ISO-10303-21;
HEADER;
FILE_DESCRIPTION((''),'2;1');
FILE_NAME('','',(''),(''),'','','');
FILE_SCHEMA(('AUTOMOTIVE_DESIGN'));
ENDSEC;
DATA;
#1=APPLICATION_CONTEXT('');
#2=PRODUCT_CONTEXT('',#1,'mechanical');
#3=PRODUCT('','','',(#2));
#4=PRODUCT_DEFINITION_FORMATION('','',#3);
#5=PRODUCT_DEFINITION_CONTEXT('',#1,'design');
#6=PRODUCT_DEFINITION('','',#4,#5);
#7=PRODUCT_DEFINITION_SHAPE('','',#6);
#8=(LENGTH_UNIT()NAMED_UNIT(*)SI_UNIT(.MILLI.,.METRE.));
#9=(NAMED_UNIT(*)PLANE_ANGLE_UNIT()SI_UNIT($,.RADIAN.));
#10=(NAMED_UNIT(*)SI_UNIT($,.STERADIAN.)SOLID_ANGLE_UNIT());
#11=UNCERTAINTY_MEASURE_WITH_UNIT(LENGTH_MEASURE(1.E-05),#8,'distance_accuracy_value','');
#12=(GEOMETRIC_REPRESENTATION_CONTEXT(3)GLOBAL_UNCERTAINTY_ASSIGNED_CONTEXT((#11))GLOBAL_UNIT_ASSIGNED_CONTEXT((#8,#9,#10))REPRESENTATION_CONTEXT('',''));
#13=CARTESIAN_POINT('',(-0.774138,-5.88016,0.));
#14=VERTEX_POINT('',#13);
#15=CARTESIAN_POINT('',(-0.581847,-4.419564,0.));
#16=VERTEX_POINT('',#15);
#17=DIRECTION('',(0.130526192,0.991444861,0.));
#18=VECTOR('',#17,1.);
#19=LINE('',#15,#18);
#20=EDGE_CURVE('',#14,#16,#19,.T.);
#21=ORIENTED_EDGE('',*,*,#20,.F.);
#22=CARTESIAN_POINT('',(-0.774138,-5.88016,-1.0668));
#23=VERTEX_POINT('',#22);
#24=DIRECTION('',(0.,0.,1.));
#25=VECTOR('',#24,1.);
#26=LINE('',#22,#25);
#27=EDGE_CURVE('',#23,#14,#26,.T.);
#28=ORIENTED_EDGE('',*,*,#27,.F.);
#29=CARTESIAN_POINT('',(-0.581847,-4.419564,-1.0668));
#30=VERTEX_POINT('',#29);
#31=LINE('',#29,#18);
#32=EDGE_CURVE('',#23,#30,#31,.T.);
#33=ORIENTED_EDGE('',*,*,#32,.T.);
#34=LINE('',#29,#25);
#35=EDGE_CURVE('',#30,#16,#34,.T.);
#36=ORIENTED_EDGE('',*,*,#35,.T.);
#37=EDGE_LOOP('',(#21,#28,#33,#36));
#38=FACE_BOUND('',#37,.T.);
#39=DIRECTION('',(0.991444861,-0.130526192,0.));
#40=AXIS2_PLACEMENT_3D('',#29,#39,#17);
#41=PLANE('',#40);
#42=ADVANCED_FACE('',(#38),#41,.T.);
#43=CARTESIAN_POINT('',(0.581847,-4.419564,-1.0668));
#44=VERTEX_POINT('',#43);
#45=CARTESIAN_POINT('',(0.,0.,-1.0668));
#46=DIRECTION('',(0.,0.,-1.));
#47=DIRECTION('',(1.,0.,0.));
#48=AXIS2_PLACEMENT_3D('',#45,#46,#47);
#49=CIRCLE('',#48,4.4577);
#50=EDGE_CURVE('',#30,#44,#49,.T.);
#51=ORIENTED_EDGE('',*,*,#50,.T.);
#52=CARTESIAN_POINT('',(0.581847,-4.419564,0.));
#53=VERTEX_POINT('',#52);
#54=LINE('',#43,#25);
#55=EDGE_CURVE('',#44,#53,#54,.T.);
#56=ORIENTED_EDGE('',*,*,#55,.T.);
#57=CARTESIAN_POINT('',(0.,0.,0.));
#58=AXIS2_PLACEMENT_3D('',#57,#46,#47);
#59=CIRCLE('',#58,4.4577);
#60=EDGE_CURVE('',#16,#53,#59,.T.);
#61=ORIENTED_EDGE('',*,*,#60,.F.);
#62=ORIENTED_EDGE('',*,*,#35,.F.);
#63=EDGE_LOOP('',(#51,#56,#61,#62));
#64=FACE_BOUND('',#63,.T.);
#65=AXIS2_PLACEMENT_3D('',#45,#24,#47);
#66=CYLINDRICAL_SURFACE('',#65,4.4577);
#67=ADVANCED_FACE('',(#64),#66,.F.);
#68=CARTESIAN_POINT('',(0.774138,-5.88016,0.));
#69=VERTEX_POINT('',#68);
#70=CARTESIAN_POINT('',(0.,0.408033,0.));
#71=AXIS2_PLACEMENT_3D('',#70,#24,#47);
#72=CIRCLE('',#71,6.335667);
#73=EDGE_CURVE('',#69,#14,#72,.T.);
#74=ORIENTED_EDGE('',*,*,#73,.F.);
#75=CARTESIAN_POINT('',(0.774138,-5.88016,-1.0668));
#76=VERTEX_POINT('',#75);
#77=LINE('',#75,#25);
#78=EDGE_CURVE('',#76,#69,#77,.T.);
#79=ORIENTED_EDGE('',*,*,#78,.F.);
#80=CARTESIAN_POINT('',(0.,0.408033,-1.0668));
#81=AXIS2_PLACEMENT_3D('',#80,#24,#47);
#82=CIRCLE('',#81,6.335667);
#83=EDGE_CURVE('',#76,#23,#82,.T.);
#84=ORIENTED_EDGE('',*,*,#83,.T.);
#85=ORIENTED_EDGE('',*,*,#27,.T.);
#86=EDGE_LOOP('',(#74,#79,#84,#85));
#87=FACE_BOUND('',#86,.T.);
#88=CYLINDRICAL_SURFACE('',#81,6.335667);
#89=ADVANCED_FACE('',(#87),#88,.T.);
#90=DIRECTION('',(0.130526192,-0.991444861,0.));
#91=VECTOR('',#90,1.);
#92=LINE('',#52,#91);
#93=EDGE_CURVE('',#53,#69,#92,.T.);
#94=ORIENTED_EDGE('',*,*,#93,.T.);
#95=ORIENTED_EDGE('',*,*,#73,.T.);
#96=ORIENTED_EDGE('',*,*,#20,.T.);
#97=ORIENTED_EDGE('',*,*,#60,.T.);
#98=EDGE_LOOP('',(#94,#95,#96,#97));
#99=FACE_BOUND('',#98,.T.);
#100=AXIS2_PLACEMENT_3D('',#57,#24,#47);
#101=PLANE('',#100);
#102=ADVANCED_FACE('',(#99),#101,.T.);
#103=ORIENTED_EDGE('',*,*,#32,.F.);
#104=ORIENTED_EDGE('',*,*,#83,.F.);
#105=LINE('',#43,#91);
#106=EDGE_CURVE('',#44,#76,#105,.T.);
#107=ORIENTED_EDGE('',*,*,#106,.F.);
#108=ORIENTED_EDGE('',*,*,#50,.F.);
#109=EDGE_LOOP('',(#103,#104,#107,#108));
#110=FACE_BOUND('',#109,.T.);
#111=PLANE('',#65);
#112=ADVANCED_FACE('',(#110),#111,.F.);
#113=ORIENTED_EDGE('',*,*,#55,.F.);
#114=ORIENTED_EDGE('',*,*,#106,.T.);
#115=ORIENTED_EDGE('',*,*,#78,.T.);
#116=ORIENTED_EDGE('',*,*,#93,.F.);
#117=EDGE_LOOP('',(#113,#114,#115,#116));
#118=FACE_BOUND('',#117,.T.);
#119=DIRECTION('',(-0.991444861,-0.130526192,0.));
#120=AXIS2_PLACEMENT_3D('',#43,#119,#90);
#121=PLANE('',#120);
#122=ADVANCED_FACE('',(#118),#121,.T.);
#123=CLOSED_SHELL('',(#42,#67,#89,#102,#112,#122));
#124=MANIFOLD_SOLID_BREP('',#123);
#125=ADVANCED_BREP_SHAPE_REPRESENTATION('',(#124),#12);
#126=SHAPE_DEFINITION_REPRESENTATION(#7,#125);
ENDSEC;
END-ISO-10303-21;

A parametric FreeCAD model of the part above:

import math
import FreeCAD as App
import Part
import Sketcher

V = App.Vector
Q = App.Units.Quantity

doc = App.newDocument("Part")
body = doc.addObject("PartDesign::Body", "Body")

sketch1 = body.newObject("Sketcher::SketchObject", "Sketch")
sketch1.AttachmentSupport = (doc.getObject("XY_Plane"), [""])
sketch1.MapMode = "FlatFace"
sketch1.addGeometry(Part.LineSegment(V(0.581847, -4.419564, 0), V(0.774138, -5.88016, 0)), False)
sketch1.addGeometry(Part.ArcOfCircle(Part.Circle(V(0, 0.408033, 0), V(0, 0, 1), 6.335667), math.radians(-82.981647), math.radians(262.981647)), False)
sketch1.addGeometry(Part.LineSegment(V(-0.774138, -5.88016, 0), V(-0.581847, -4.419564, 0)), False)
sketch1.addGeometry(Part.ArcOfCircle(Part.Circle(V(0, 0, 0), V(0, 0, 1), 4.4577), math.radians(-82.5), math.radians(262.5)), False)
sketch1.addConstraint(Sketcher.Constraint("Coincident", 0, 2, 1, 1))
sketch1.addConstraint(Sketcher.Constraint("Coincident", 1, 2, 2, 1))
sketch1.addConstraint(Sketcher.Constraint("Coincident", 2, 2, 3, 2))
sketch1.addConstraint(Sketcher.Constraint("Coincident", 3, 1, 0, 1))
sketch1.addConstraint(Sketcher.Constraint("Coincident", 3, 3, -1, 1))
sketch1.addConstraint(Sketcher.Constraint("Symmetric", 0, 2, 1, 2, -2))
sketch1.addConstraint(Sketcher.Constraint("Horizontal", 2, 2, 3, 1))
sketch1.addConstraint(Sketcher.Constraint("Angle", 0, Q("-82.5 deg")))
sketch1.addConstraint(Sketcher.Constraint("Radius", 3, Q("0.1755 in")))
sketch1.addConstraint(Sketcher.Constraint("Distance", 0, Q("0.058 in")))
sketch1.addConstraint(Sketcher.Constraint("Radius", 1, Q("6.335667 mm")))
sketch1.addConstraint(Sketcher.Constraint("DistanceY", 0, 2, -1, 1, Q("5.88016 mm")))
pad1 = body.newObject("PartDesign::Pad", "Pad")
pad1.Profile = sketch1
pad1.Length = Q("0.042 in")
pad1.Reversed = True

doc.recompute()
